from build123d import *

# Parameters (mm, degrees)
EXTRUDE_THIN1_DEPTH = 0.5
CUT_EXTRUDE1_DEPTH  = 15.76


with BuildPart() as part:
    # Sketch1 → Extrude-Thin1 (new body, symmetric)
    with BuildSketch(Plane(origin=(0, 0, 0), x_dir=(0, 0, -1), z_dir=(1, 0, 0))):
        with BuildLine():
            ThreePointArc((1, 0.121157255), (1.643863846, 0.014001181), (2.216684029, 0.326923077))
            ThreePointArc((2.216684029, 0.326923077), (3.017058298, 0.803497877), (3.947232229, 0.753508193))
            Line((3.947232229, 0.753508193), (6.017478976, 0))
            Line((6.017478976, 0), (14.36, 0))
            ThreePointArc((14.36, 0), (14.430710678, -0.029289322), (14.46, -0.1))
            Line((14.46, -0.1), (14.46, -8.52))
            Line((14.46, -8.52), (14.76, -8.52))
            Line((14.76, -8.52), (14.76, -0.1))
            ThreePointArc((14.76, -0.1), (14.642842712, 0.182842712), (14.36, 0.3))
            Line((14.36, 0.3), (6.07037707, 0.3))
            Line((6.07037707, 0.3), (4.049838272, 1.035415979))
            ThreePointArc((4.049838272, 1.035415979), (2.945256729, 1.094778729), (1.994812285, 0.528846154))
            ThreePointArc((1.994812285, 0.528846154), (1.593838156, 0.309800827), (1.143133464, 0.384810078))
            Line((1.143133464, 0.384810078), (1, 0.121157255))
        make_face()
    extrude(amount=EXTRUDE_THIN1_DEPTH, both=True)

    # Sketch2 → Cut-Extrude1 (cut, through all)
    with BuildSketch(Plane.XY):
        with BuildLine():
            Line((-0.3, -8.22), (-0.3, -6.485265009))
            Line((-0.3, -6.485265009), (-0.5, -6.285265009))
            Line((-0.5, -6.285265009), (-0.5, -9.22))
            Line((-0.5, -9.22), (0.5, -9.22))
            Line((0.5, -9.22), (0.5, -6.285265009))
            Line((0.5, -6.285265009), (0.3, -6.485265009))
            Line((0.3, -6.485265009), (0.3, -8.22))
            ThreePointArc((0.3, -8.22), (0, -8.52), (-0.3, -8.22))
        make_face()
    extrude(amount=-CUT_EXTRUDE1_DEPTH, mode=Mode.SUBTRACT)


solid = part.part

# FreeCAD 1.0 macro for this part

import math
import FreeCAD as App
import Part
import Sketcher

V = App.Vector
Q = App.Units.Quantity

doc = App.newDocument("Part")
params = doc.addObject("Spreadsheet::Sheet", "Params")
for row, (alias, value) in enumerate([
    ("sketch1_radius", "1 mm"),
    ("sketch1_radius2", "1.6 mm"),
    ("sketch1_radius3", "0.1 mm"),
    ("sketch1_radius4", "0.4 mm"),
    ("sketch1_radius5", "1.9 mm"),
    ("pad1_length", "1 mm"),
    ("sketch2_radius", "0.3 mm"),
    ("sketch2_width", "1 mm"),
], start=1):
    params.set(f"A{row}", alias)
    params.set(f"B{row}", "=" + value)
    params.setAlias(f"B{row}", alias)

body = doc.addObject("PartDesign::Body", "Body")

# Sketch on YZ plane
sketch1 = body.newObject("Sketcher::SketchObject", "Sketch")
sketch1.AttachmentSupport = (doc.getObject("YZ_Plane"), [""])
sketch1.MapMode = "FlatFace"
sketch1.addGeometry(Part.ArcOfCircle(Part.Circle(V(1, -1.48, 0), V(0, 0, 1), 1), math.radians(152), math.radians(228)), False)
sketch1.addGeometry(Part.ArcOfCircle(Part.Circle(V(-0.75, -3.4, 0), V(0, 0, 1), 1.6), math.radians(-20), math.radians(48)), False)
sketch1.addGeometry(Part.LineSegment(V(0.75, -3.95, 0), V(0, -6.02, 0)), False)
sketch1.addGeometry(Part.LineSegment(V(0, -6.02, 0), V(0, -14.36, 0)), False)
sketch1.addGeometry(Part.ArcOfCircle(Part.Circle(V(-0.1, -14.36, 0), V(0, 0, 1), 0.1), math.radians(-90), math.radians(0)), False)
sketch1.addGeometry(Part.LineSegment(V(-0.1, -14.46, 0), V(-8.52, -14.46, 0)), False)
sketch1.addGeometry(Part.LineSegment(V(-8.52, -14.46, 0), V(-8.52, -14.76, 0)), False)
sketch1.addGeometry(Part.LineSegment(V(-8.52, -14.76, 0), V(-0.1, -14.76, 0)), False)
sketch1.addGeometry(Part.ArcOfCircle(Part.Circle(V(-0.1, -14.36, 0), V(0, 0, 1), 0.4), math.radians(-90), math.radians(0)), False)
sketch1.addGeometry(Part.LineSegment(V(0.3, -14.36, 0), V(0.3, -6.07, 0)), False)
sketch1.addGeometry(Part.LineSegment(V(0.3, -6.07, 0), V(1.04, -4.05, 0)), False)
sketch1.addGeometry(Part.ArcOfCircle(Part.Circle(V(-0.75, -3.4, 0), V(0, 0, 1), 1.9), math.radians(-20), math.radians(48)), False)
sketch1.addGeometry(Part.ArcOfCircle(Part.Circle(V(1, -1.48, 0), V(0, 0, 1), 0.7), math.radians(152), math.radians(228)), False)
sketch1.addGeometry(Part.LineSegment(V(0.38, -1.14, 0), V(0.12, -1, 0)), False)
sketch1.addConstraint(Sketcher.Constraint("Tangent", 0, 2, 1, 2))
sketch1.addConstraint(Sketcher.Constraint("Tangent", 1, 1, 2, 1))
sketch1.addConstraint(Sketcher.Constraint("Coincident", 2, 2, 3, 1))
sketch1.addConstraint(Sketcher.Constraint("Tangent", 3, 2, 4, 2))
sketch1.addConstraint(Sketcher.Constraint("Tangent", 4, 1, 5, 1))
sketch1.addConstraint(Sketcher.Constraint("Coincident", 5, 2, 6, 1))
sketch1.addConstraint(Sketcher.Constraint("Coincident", 6, 2, 7, 1))
sketch1.addConstraint(Sketcher.Constraint("Tangent", 7, 2, 8, 1))
sketch1.addConstraint(Sketcher.Constraint("Tangent", 8, 2, 9, 1))
sketch1.addConstraint(Sketcher.Constraint("Coincident", 9, 2, 10, 1))
sketch1.addConstraint(Sketcher.Constraint("Tangent", 10, 2, 11, 1))
sketch1.addConstraint(Sketcher.Constraint("Tangent", 11, 2, 12, 2))
sketch1.addConstraint(Sketcher.Constraint("Coincident", 12, 1, 13, 1))
sketch1.addConstraint(Sketcher.Constraint("Coincident", 13, 2, 0, 1))
sketch1.addConstraint(Sketcher.Constraint("Vertical", 3))
sketch1.addConstraint(Sketcher.Constraint("Horizontal", 5))
sketch1.addConstraint(Sketcher.Constraint("Vertical", 6))
sketch1.addConstraint(Sketcher.Constraint("Horizontal", 7))
sketch1.addConstraint(Sketcher.Constraint("Vertical", 9))
sketch1.addConstraint(Sketcher.Constraint("Coincident", 8, 3, 4, 3))
sketch1.addConstraint(Sketcher.Constraint("Coincident", 11, 3, 1, 3))
sketch1.addConstraint(Sketcher.Constraint("Coincident", 12, 3, 0, 3))
sketch1.addConstraint(Sketcher.Constraint("PointOnObject", 2, 2, -2))
sketch1.addConstraint(Sketcher.Constraint("Parallel", 2, 10))
sketch1.addConstraint(Sketcher.Constraint("Radius", 0, Q("1 mm")))
sketch1.addConstraint(Sketcher.Constraint("Radius", 1, Q("1.6 mm")))
sketch1.addConstraint(Sketcher.Constraint("Radius", 4, Q("0.1 mm")))
sketch1.addConstraint(Sketcher.Constraint("Radius", 8, Q("0.4 mm")))
sketch1.addConstraint(Sketcher.Constraint("Radius", 11, Q("1.9 mm")))
sketch1.addConstraint(Sketcher.Constraint("Angle", 2, Q("-110 deg")))
sketch1.addConstraint(Sketcher.Constraint("DistanceX", -1, 1, 0, 3, Q("1 mm")))
sketch1.addConstraint(Sketcher.Constraint("DistanceY", 13, 2, -1, 1, Q("1 mm")))
sketch1.addConstraint(Sketcher.Constraint("DistanceX", 5, 2, 5, 1, Q("8.42 mm")))
sketch1.addConstraint(Sketcher.Constraint("DistanceY", 1, 3, -1, 1, Q("3.4 mm")))
sketch1.addConstraint(Sketcher.Constraint("DistanceX", 1, 3, -1, 1, Q("0.75 mm")))
sketch1.addConstraint(Sketcher.Constraint("DistanceY", 4, 3, -1, 1, Q("14.36 mm")))
sketch1.addConstraint(Sketcher.Constraint("DistanceX", -1, 1, 12, 1, Q("0.38481 mm")))
sketch1.setExpression("Constraints[24]", "Params.sketch1_radius")
sketch1.setExpression("Constraints[25]", "Params.sketch1_radius2")
sketch1.setExpression("Constraints[26]", "Params.sketch1_radius3")
sketch1.setExpression("Constraints[27]", "Params.sketch1_radius4")
sketch1.setExpression("Constraints[28]", "Params.sketch1_radius5")
pad1 = body.newObject("PartDesign::Pad", "Pad")
pad1.Profile = sketch1
pad1.setExpression("Length", "Params.pad1_length")
pad1.Midplane = True

# Sketch on XY plane
sketch2 = body.newObject("Sketcher::SketchObject", "Sketch001")
sketch2.AttachmentSupport = (doc.getObject("XY_Plane"), [""])
sketch2.MapMode = "FlatFace"
sketch2.addGeometry(Part.LineSegment(V(-0.3, -8.22, 0), V(-0.3, -6.49, 0)), False)
sketch2.addGeometry(Part.LineSegment(V(-0.3, -6.49, 0), V(-0.5, -6.29, 0)), False)
sketch2.addGeometry(Part.LineSegment(V(-0.5, -6.29, 0), V(-0.5, -9.22, 0)), False)
sketch2.addGeometry(Part.LineSegment(V(-0.5, -9.22, 0), V(0.5, -9.22, 0)), False)
sketch2.addGeometry(Part.LineSegment(V(0.5, -9.22, 0), V(0.5, -6.29, 0)), False)
sketch2.addGeometry(Part.LineSegment(V(0.5, -6.29, 0), V(0.3, -6.49, 0)), False)
sketch2.addGeometry(Part.LineSegment(V(0.3, -6.49, 0), V(0.3, -8.22, 0)), False)
sketch2.addGeometry(Part.ArcOfCircle(Part.Circle(V(0, -8.22, 0), V(0, 0, 1), 0.3), math.radians(180), math.radians(360)), False)
sketch2.addConstraint(Sketcher.Constraint("Coincident", 0, 2, 1, 1))
sketch2.addConstraint(Sketcher.Constraint("Coincident", 1, 2, 2, 1))
sketch2.addConstraint(Sketcher.Constraint("Coincident", 2, 2, 3, 1))
sketch2.addConstraint(Sketcher.Constraint("Coincident", 3, 2, 4, 1))
sketch2.addConstraint(Sketcher.Constraint("Coincident", 4, 2, 5, 1))
sketch2.addConstraint(Sketcher.Constraint("Coincident", 5, 2, 6, 1))
sketch2.addConstraint(Sketcher.Constraint("Tangent", 6, 2, 7, 2))
sketch2.addConstraint(Sketcher.Constraint("Tangent", 7, 1, 0, 1))
sketch2.addConstraint(Sketcher.Constraint("Vertical", 0))
sketch2.addConstraint(Sketcher.Constraint("Vertical", 2))
sketch2.addConstraint(Sketcher.Constraint("Horizontal", 3))
sketch2.addConstraint(Sketcher.Constraint("Vertical", 4))
sketch2.addConstraint(Sketcher.Constraint("Vertical", 6))
sketch2.addConstraint(Sketcher.Constraint("Symmetric", 1, 2, 4, 2, -2))
sketch2.addConstraint(Sketcher.Constraint("Symmetric", 0, 2, 5, 2, -2))
sketch2.addConstraint(Sketcher.Constraint("Perpendicular", 1, 5))
sketch2.addConstraint(Sketcher.Constraint("Radius", 7, Q("0.3 mm")))
sketch2.addConstraint(Sketcher.Constraint("DistanceX", 3, 1, 3, 2, Q("1 mm")))
sketch2.addConstraint(Sketcher.Constraint("DistanceY", 2, 2, 7, 3, Q("1 mm")))
sketch2.addConstraint(Sketcher.Constraint("DistanceY", 7, 3, -1, 1, Q("8.22 mm")))
sketch2.addConstraint(Sketcher.Constraint("DistanceY", 0, 1, 0, 2, Q("1.734735 mm")))
sketch2.setExpression("Constraints[16]", "Params.sketch2_radius")
sketch2.setExpression("Constraints[17]", "Params.sketch2_width")
pocket1 = body.newObject("PartDesign::Pocket", "Pocket")
pocket1.Profile = sketch2
pocket1.Type = "ThroughAll"

doc.recompute()
